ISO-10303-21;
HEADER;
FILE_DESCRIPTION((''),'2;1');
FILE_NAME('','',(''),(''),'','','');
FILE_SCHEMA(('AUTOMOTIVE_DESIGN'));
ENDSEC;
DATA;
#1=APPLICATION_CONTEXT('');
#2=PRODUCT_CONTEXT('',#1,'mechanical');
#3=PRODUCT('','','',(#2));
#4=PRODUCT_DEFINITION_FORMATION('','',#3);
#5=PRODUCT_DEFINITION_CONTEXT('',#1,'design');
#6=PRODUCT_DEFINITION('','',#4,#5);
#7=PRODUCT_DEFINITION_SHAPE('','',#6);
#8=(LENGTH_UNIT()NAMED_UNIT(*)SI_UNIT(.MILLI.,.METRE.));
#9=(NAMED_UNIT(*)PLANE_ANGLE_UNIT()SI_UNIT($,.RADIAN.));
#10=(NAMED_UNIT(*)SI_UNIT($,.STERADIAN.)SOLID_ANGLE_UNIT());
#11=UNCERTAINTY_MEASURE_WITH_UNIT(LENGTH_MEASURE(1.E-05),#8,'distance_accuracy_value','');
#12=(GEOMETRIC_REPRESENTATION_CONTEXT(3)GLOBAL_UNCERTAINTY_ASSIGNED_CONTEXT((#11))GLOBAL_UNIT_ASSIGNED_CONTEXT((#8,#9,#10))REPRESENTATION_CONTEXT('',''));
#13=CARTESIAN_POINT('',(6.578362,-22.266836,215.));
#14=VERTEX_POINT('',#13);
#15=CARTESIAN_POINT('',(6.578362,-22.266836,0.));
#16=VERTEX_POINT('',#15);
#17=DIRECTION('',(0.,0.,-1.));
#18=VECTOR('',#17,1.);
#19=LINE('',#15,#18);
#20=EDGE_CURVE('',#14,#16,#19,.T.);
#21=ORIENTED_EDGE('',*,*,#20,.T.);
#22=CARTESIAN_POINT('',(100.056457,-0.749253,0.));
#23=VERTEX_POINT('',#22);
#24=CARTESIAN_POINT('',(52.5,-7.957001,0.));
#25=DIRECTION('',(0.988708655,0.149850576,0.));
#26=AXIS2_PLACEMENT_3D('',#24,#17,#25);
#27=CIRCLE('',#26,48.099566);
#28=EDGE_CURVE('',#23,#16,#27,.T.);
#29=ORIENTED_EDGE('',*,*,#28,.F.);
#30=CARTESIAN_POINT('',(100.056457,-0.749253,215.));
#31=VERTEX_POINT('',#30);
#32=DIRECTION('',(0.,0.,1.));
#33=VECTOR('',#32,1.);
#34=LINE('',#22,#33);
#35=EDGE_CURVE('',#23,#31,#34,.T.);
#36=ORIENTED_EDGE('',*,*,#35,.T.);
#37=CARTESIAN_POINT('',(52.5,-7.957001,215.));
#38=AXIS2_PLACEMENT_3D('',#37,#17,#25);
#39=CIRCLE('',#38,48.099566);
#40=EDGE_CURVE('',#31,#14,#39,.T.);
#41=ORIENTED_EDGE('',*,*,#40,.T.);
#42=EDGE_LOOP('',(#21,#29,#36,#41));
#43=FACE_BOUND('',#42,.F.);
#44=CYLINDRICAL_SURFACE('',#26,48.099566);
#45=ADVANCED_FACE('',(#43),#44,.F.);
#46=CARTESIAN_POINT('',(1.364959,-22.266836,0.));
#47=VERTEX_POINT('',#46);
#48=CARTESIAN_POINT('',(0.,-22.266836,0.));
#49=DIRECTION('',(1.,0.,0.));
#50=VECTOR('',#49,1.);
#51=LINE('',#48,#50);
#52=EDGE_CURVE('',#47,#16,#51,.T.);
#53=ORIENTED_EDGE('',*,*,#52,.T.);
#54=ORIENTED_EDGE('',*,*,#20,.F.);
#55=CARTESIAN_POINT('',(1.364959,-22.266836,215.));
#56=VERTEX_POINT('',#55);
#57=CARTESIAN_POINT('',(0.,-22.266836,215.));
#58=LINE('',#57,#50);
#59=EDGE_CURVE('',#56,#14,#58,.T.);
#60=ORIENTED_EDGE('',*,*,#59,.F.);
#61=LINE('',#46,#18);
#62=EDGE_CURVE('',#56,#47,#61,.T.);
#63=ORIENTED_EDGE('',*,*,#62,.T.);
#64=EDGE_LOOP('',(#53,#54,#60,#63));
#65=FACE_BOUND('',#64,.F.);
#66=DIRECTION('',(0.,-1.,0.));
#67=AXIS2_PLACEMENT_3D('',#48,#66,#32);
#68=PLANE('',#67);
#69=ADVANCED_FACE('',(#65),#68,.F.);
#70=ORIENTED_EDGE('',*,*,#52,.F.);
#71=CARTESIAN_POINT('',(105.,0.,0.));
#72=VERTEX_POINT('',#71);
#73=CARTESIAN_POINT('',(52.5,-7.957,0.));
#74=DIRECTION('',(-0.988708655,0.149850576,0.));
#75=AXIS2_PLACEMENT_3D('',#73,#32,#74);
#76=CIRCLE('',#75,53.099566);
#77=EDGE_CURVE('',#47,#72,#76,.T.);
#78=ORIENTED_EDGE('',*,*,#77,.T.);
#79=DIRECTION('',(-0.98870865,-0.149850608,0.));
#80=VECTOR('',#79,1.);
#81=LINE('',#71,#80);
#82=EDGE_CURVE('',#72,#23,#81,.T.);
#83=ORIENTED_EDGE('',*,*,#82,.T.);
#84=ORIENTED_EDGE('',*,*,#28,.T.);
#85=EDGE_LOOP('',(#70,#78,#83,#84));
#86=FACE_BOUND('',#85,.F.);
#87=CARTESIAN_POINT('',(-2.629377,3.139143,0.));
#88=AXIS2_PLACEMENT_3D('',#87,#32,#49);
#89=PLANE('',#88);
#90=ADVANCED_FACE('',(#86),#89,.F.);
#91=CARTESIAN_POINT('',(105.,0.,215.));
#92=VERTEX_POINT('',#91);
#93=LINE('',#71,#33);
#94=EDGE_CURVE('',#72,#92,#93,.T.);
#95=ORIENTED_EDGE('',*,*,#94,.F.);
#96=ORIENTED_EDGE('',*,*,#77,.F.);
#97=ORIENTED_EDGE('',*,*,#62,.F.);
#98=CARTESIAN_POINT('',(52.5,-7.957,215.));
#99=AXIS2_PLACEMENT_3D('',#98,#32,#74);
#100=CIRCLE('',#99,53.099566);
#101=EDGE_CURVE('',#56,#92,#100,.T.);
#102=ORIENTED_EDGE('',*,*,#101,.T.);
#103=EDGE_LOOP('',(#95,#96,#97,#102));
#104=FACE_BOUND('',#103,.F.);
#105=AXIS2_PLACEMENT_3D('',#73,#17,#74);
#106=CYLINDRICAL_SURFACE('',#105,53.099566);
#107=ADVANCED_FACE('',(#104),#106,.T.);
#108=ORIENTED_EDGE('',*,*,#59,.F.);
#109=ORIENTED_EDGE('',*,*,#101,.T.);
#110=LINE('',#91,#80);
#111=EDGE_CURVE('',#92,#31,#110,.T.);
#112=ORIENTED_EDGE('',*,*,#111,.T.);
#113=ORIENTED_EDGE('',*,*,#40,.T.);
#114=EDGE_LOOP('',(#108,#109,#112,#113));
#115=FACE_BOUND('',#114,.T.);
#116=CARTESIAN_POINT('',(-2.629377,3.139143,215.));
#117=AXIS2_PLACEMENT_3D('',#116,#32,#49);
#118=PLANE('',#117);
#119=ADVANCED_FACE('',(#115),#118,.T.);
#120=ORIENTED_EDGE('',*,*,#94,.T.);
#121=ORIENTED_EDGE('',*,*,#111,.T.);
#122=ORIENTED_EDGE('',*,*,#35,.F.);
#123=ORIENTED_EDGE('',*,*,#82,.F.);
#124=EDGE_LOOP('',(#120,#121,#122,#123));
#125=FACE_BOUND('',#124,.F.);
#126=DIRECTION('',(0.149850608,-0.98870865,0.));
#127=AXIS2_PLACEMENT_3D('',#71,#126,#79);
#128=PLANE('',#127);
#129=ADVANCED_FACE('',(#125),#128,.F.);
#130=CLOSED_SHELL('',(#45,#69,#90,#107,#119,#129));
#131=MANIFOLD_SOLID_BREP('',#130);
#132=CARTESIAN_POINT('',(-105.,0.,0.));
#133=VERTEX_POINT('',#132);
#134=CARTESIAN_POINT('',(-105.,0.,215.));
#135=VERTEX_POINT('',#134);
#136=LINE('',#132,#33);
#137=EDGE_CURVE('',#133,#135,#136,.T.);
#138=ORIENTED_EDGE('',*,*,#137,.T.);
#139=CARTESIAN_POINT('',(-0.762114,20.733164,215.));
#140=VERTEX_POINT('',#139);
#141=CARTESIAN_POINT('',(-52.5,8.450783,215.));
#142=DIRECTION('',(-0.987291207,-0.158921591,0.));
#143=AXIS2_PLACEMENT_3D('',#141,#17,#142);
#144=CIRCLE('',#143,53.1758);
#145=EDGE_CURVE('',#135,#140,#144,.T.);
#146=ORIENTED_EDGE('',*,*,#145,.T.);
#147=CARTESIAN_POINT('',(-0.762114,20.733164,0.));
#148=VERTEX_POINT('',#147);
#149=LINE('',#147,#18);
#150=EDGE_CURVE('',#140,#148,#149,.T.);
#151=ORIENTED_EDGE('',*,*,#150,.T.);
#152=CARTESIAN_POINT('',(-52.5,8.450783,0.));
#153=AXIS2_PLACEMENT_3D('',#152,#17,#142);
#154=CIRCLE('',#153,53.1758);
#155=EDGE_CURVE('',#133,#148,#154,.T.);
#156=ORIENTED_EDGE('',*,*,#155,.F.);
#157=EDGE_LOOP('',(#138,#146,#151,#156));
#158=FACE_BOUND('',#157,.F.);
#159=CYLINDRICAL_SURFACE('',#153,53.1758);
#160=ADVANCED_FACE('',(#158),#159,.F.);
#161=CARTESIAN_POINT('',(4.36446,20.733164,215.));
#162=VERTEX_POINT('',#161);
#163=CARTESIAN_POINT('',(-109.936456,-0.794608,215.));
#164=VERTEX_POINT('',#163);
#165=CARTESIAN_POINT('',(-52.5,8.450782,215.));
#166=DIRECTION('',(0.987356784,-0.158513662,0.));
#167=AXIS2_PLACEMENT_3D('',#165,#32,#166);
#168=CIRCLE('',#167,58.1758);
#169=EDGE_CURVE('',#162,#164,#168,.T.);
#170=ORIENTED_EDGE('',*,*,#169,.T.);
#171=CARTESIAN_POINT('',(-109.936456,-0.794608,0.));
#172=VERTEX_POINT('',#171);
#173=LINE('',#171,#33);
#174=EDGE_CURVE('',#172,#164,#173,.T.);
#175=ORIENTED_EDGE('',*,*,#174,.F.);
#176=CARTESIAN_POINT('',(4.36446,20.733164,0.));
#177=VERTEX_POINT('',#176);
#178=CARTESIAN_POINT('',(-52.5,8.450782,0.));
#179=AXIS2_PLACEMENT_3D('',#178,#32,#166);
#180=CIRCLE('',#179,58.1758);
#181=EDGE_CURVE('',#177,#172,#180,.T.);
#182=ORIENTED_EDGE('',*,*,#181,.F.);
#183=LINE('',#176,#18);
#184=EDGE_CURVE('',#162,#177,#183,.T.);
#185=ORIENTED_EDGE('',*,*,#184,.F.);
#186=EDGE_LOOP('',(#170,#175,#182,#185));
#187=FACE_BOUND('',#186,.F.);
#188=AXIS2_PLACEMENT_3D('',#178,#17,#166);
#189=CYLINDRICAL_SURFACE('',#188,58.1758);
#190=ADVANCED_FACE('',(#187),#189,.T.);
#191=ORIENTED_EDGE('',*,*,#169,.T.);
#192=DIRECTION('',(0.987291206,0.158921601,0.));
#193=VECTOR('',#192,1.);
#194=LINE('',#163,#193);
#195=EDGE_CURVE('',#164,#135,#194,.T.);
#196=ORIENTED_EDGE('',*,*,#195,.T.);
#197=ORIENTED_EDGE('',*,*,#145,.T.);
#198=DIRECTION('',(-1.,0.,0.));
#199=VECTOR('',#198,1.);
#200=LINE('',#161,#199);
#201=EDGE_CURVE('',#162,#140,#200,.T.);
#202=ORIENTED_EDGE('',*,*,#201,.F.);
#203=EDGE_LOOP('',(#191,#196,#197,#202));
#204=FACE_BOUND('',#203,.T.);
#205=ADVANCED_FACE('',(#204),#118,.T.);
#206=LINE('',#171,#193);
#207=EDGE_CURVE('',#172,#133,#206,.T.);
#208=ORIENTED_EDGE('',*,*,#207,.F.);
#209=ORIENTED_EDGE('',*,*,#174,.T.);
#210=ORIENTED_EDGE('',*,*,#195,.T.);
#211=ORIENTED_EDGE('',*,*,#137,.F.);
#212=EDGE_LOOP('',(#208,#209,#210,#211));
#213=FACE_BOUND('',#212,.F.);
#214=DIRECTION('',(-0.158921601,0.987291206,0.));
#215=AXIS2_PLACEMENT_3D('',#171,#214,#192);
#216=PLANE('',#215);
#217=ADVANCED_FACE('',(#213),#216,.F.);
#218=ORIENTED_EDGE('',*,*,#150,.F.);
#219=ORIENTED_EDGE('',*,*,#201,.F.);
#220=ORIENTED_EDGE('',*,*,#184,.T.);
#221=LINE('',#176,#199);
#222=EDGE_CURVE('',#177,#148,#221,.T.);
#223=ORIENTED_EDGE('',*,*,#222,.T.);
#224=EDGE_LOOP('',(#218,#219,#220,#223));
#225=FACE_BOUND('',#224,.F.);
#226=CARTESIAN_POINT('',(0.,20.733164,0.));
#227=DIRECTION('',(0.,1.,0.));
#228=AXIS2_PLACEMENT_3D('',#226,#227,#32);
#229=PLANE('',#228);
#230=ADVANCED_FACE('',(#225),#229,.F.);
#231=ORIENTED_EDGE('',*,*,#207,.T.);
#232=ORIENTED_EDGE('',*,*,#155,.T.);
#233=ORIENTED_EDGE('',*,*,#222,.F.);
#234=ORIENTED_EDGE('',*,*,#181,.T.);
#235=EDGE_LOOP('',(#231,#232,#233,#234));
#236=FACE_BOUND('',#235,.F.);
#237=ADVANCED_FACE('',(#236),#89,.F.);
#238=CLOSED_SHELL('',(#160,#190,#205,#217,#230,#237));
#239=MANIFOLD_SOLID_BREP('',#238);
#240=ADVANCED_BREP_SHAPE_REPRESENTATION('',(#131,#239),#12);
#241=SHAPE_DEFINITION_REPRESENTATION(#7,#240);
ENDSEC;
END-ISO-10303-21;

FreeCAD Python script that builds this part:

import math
import FreeCAD as App
import Part
import Sketcher


def add_polygon(sketch, points):
    """Adds a closed chain of lines whose ends are joined by coincident constraints."""
    first, n = sketch.GeometryCount, len(points)
    for a, b in zip(points, points[1:] + points[:1]):
        sketch.addGeometry(Part.LineSegment(App.Vector(*a, 0), App.Vector(*b, 0)), False)
    for i in range(n):
        sketch.addConstraint(Sketcher.Constraint("Coincident", first + i, 2, first + (i + 1) % n, 1))

doc = App.newDocument("Part")
body = doc.addObject("PartDesign::Body", "Body")
body.AllowCompound = True

sketch1 = body.newObject("Sketcher::SketchObject", "Sketch")
sketch1.AttachmentSupport = (doc.getObject("XY_Plane"), [""])
sketch1.MapMode = "FlatFace"
sketch1.addGeometry([
    Part.ArcOfCircle(Part.Circle(App.Vector(-52.5, 8.450783, 0), App.Vector(0, 0, 1), 53.1758), math.radians(-9.144307), math.radians(189.144307)),
    Part.ArcOfCircle(Part.Circle(App.Vector(52.5, -7.957, 0), App.Vector(0, 0, 1), 53.099566), math.radians(171.381733), math.radians(368.618267)),
    Part.LineSegment(App.Vector(105, 0, 0), App.Vector(100.056457, -0.749253, 0)),
    Part.ArcOfCircle(Part.Circle(App.Vector(52.5, -7.957001, 0), App.Vector(0, 0, 1), 48.099566), math.radians(171.407784), math.radians(368.618267)),
    Part.ArcOfCircle(Part.Circle(App.Vector(-52.5, 8.450782, 0), App.Vector(0, 0, 1), 58.1758), math.radians(-9.120634), math.radians(189.144306)),
    Part.LineSegment(App.Vector(-109.936456, -0.794608, 0), App.Vector(-105, 0, 0)),
], False)
sketch1.addConstraint([
    Sketcher.Constraint("Coincident", 0, 1, 1, 1),
    Sketcher.Constraint("Coincident", 1, 2, 2, 1),
    Sketcher.Constraint("Coincident", 2, 2, 3, 2),
    Sketcher.Constraint("Coincident", 3, 1, 4, 1),
    Sketcher.Constraint("Coincident", 4, 2, 5, 1),
    Sketcher.Constraint("Coincident", 5, 2, 0, 2),
    Sketcher.Constraint("Coincident", 0, 1, -1, 1),
    Sketcher.Constraint("Coincident", 3, 3, 1, 3),
    Sketcher.Constraint("Coincident", 4, 3, 0, 3),
    Sketcher.Constraint("Symmetric", 1, 2, 5, 2, -1, 1),
    Sketcher.Constraint("PointOnObject", 1, 2, -1),
    Sketcher.Constraint("Equal", 2, 5),
    Sketcher.Constraint("Distance", 2, 5.0),
    Sketcher.Constraint("DistanceX", -1, 1, 1, 2, 105.0),
    Sketcher.Constraint("Radius", 0, 53.1758),
    Sketcher.Constraint("DistanceY", 1, 3, -1, 1, 7.957),
    Sketcher.Constraint("DistanceY", 4, 2, -1, 1, 0.794608),
    Sketcher.Constraint("DistanceX", -1, 1, 2, 2, 100.056457),
])
pad1 = body.newObject("PartDesign::Pad", "Pad")
pad1.Profile = sketch1
pad1.Length = 215

sketch2 = body.newObject("Sketcher::SketchObject", "Sketch001")
sketch2.AttachmentSupport = (doc.getObject("YZ_Plane"), [""])
sketch2.MapMode = "FlatFace"
add_polygon(sketch2, [(-22, 215), (-22, 0), (21, 0), (21, 215)])
sketch2.addConstraint([
    Sketcher.Constraint("Vertical", 0),
    Sketcher.Constraint("Horizontal", 1),
    Sketcher.Constraint("Vertical", 2),
    Sketcher.Constraint("Horizontal", 3),
    Sketcher.Constraint("PointOnObject", 0, 2, -1),
    Sketcher.Constraint("DistanceX", 1, 1, 1, 2, 43.0),
    Sketcher.Constraint("DistanceY", 0, 2, 0, 1, 215.0),
    Sketcher.Constraint("DistanceX", 0, 2, -1, 1, 22.266836),
])
pocket1 = body.newObject("PartDesign::Pocket", "Pocket")
pocket1.Profile = sketch2
pocket1.Type = "TwoLengths"
pocket1.Length = 7
pocket1.Length2 = 7
pocket1.Reversed = True

doc.recompute()
